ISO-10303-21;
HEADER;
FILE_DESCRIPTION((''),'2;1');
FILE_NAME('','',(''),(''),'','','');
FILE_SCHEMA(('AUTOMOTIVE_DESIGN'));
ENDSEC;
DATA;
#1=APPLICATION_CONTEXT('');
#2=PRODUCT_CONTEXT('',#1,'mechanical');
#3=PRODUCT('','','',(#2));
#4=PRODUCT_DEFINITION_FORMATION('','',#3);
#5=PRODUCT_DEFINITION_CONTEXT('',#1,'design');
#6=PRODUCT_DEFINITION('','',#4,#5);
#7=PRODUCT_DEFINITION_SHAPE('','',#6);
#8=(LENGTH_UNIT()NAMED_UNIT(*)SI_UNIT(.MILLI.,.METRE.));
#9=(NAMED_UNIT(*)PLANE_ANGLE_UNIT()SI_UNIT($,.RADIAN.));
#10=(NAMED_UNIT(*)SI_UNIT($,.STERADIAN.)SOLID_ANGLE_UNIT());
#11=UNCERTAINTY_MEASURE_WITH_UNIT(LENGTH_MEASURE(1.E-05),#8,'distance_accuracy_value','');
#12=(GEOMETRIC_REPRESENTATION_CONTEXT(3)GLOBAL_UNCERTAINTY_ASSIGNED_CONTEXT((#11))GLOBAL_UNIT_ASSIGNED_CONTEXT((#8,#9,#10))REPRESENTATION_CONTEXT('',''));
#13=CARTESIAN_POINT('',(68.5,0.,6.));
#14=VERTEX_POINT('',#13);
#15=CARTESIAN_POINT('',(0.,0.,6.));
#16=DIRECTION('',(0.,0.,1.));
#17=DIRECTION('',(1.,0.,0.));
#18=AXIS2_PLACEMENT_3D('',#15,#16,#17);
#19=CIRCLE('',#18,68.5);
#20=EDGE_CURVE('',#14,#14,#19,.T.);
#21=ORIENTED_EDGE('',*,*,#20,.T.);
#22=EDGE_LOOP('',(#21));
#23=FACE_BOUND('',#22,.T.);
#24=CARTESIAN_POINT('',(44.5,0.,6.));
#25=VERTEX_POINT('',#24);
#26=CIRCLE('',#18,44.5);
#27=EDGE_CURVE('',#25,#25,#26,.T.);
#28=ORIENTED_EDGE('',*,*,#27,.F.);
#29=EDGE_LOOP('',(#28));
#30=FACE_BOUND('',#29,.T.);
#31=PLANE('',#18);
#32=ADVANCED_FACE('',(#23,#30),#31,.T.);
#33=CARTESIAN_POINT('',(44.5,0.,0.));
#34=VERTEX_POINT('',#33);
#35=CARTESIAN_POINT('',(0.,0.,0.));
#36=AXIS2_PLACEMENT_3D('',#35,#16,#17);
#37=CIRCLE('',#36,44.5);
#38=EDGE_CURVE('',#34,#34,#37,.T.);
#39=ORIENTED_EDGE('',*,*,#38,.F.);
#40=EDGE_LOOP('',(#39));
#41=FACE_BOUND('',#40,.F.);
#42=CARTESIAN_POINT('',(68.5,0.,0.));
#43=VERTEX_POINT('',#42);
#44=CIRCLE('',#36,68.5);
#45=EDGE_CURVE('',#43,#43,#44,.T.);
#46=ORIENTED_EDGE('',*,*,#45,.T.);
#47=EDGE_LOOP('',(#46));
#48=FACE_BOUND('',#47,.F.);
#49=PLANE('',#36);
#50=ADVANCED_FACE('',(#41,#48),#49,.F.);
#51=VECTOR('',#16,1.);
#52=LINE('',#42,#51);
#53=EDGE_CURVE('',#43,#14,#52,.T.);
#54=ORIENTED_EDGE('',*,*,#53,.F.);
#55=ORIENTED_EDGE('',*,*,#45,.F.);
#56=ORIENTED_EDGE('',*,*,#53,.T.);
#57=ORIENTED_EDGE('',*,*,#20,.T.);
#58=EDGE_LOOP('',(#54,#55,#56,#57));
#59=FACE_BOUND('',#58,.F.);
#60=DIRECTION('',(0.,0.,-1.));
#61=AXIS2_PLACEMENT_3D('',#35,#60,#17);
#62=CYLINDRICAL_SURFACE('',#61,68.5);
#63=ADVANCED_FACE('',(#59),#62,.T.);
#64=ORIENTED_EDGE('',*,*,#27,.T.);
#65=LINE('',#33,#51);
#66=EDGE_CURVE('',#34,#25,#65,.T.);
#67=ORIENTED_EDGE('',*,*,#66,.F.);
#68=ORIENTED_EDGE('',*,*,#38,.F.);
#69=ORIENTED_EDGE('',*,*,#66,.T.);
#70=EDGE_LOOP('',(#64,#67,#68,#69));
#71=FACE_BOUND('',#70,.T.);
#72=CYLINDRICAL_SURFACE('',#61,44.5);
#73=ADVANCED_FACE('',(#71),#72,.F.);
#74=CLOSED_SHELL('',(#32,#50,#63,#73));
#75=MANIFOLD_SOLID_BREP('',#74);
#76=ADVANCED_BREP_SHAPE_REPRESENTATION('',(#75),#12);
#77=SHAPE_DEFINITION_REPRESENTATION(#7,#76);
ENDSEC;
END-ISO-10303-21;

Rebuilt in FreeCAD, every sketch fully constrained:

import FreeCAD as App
import Part
import Sketcher

V = App.Vector
Q = App.Units.Quantity

doc = App.newDocument("Part")
body = doc.addObject("PartDesign::Body", "Body")

sketch1 = body.newObject("Sketcher::SketchObject", "Sketch")
sketch1.AttachmentSupport = (doc.getObject("XY_Plane"), [""])
sketch1.MapMode = "FlatFace"
sketch1.addGeometry([
    Part.Circle(V(0, 0, 0), V(0, 0, 1), 68),
    Part.Circle(V(0, 0, 0), V(0, 0, 1), 44),
], False)
sketch1.addConstraint([
    Sketcher.Constraint("Coincident", 0, 3, -1, 1),
    Sketcher.Constraint("Coincident", 1, 3, -1, 1),
    Sketcher.Constraint("Diameter", 1, Q("89 mm")),
    Sketcher.Constraint("Diameter", 0, Q("137 mm")),
])
pad1 = body.newObject("PartDesign::Pad", "Pad")
pad1.Profile = sketch1
pad1.Length = 6

doc.recompute()
